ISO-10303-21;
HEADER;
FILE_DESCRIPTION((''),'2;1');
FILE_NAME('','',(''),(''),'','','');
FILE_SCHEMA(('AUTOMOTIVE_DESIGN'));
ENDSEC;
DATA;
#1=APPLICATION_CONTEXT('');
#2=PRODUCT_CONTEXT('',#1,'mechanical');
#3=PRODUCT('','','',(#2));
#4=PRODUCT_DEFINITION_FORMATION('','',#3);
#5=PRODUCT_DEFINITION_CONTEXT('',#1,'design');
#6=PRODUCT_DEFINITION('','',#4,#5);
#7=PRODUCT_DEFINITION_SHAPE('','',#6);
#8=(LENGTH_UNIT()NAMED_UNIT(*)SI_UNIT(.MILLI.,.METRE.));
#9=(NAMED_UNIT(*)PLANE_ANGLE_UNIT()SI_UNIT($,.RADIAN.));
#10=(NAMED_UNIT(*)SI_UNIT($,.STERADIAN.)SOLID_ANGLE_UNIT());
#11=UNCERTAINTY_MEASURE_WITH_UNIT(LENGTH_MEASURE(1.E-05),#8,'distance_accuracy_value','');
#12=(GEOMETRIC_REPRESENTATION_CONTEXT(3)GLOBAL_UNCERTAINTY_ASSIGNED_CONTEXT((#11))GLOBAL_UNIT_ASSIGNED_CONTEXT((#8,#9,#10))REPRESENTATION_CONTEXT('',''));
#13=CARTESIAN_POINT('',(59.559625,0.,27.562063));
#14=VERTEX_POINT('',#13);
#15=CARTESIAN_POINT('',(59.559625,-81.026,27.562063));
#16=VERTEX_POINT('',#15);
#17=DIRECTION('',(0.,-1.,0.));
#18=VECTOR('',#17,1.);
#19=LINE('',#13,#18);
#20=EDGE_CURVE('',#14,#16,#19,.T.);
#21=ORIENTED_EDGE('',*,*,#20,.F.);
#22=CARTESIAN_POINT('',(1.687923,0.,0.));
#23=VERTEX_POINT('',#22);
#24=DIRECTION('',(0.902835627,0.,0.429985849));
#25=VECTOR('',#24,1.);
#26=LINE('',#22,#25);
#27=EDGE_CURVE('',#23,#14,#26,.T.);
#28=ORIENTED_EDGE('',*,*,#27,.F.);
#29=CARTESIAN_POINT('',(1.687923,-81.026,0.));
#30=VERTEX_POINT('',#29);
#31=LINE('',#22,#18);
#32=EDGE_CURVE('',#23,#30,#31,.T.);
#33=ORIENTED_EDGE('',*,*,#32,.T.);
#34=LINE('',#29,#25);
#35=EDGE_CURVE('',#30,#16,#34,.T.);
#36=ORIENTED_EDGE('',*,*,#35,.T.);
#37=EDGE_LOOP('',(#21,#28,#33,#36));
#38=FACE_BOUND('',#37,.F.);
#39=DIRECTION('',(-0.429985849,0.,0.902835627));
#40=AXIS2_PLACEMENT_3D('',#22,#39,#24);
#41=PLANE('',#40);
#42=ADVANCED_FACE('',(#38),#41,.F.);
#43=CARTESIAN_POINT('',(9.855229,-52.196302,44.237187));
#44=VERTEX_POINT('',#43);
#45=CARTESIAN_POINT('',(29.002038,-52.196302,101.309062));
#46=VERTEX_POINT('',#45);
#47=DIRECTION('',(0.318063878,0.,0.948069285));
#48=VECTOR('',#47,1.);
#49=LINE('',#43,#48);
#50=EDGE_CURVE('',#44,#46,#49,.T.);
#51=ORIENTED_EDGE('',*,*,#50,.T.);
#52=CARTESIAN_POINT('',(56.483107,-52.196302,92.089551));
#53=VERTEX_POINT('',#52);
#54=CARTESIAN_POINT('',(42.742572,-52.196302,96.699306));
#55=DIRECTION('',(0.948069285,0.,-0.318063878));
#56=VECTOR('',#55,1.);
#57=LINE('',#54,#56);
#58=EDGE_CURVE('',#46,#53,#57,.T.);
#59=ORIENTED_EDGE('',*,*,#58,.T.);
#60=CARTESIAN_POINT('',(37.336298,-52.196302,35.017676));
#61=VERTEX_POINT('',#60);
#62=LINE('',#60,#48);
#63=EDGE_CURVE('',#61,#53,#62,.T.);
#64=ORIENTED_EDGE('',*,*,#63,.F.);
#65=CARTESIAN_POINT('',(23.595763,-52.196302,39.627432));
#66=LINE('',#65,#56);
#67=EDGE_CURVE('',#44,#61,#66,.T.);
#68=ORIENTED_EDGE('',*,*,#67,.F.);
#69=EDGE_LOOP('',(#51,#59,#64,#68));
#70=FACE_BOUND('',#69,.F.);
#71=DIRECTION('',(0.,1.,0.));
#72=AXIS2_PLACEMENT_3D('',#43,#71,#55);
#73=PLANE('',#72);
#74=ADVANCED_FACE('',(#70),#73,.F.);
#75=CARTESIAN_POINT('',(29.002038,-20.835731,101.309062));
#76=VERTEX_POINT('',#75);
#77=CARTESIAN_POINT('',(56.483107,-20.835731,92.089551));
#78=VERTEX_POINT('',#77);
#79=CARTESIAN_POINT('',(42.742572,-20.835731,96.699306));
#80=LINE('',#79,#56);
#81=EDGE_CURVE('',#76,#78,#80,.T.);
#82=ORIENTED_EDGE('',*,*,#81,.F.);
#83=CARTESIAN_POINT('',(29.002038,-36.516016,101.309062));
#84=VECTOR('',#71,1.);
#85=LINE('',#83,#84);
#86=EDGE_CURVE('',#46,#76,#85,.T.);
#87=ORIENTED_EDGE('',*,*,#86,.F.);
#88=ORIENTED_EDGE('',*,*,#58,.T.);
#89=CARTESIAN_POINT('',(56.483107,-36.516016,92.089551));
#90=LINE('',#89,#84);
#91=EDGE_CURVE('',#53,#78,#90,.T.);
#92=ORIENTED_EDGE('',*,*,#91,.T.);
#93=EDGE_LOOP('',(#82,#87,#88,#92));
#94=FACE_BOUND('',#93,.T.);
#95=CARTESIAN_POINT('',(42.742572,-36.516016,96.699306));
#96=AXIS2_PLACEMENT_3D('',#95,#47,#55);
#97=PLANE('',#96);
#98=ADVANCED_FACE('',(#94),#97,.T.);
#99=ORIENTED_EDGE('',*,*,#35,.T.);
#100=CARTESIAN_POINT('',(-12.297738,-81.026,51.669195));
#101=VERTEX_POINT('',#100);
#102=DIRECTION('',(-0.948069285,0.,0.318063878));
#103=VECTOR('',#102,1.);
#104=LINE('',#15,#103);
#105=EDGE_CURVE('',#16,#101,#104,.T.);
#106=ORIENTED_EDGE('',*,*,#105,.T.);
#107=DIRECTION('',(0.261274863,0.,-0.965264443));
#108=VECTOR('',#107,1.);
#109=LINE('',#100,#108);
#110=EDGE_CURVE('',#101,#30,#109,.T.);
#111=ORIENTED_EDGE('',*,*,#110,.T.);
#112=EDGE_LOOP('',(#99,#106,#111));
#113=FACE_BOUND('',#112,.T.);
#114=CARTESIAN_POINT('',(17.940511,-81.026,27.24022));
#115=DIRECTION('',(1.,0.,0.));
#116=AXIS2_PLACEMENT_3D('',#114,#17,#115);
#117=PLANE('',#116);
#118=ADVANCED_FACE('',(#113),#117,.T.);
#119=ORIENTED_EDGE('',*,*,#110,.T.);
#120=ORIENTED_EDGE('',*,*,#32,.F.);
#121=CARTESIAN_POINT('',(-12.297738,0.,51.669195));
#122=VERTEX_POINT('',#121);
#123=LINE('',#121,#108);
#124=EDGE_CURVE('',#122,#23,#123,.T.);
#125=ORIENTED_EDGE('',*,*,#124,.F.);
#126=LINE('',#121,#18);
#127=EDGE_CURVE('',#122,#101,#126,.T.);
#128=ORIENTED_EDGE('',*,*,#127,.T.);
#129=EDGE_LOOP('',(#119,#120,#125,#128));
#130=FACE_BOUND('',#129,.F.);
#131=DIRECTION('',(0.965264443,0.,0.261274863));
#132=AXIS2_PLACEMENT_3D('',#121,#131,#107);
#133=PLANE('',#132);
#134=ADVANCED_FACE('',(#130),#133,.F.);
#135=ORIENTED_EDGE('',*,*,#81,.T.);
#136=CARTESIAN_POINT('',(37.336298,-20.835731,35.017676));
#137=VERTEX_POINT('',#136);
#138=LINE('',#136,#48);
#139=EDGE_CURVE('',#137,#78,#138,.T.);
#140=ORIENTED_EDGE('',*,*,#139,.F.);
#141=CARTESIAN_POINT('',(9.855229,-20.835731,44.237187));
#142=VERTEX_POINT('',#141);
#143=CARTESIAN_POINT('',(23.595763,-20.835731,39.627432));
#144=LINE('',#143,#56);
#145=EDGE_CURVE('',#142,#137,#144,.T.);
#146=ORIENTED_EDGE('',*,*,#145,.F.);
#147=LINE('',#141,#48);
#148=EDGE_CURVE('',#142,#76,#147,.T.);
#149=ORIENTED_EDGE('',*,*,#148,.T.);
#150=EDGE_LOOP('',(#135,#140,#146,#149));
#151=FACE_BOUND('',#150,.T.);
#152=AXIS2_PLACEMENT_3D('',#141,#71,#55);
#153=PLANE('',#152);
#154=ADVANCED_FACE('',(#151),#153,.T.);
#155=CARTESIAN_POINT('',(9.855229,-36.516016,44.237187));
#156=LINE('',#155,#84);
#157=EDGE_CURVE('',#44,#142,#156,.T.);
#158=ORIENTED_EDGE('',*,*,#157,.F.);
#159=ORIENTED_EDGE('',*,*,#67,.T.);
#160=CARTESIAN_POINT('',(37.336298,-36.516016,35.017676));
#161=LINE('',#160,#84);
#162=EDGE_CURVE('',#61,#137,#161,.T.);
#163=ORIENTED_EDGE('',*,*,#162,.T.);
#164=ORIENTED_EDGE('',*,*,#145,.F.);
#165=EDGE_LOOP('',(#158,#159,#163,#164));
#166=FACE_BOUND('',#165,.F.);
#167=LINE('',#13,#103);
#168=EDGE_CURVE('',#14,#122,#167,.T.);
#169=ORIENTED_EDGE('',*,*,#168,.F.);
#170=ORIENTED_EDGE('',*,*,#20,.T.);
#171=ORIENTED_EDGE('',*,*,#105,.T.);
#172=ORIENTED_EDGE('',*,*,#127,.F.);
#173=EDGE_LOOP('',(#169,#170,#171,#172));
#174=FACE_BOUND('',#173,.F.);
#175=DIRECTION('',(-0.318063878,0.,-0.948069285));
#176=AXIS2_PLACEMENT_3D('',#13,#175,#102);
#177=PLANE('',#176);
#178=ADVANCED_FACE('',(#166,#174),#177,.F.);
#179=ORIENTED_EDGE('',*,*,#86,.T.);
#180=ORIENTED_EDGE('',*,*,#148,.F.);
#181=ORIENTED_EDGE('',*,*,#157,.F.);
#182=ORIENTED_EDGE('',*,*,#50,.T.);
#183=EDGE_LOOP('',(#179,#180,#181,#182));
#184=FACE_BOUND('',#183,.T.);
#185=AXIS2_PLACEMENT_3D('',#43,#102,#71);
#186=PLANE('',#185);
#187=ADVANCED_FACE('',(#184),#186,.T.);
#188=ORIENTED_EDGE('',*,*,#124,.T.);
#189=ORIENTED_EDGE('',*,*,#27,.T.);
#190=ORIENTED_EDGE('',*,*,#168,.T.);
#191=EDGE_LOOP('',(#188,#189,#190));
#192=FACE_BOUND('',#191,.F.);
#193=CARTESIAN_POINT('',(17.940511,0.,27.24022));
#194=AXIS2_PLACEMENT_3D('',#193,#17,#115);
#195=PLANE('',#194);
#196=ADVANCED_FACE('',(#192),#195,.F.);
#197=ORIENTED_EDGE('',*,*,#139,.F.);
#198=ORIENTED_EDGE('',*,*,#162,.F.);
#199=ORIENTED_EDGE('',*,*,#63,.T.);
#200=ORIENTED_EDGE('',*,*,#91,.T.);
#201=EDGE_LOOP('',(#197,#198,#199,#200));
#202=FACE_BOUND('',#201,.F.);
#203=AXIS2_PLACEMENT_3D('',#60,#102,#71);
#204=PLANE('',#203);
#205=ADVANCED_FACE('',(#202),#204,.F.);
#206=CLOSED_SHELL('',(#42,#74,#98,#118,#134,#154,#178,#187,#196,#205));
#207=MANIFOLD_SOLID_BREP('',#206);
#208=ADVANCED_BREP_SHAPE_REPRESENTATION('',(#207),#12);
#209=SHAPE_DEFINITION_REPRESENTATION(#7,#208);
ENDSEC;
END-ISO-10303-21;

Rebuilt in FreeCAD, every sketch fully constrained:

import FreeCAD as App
import Part
import Sketcher

V = App.Vector
Q = App.Units.Quantity

doc = App.newDocument("Part")
body = doc.addObject("PartDesign::Body", "Body")

sketch1 = doc.addObject("Sketcher::SketchObject", "Sketch")
body.addObject(sketch1)
sketch1.AttachmentSupport = (doc.XZ_Plane, [""])
sketch1.MapMode = "FlatFace"
sketch1.addGeometry([
    Part.LineSegment(V(-12, 52, 0), V(2, 0, 0)),
    Part.LineSegment(V(2, 0, 0), V(60, 28, 0)),
    Part.LineSegment(V(60, 28, 0), V(-12, 52, 0)),
], False)
sketch1.addConstraint([
    Sketcher.Constraint("Coincident", 0, 2, 1, 1),
    Sketcher.Constraint("Coincident", 1, 2, 2, 1),
    Sketcher.Constraint("Coincident", 2, 2, 0, 1),
    Sketcher.Constraint("PointOnObject", 0, 2, -1),
    Sketcher.Constraint("DistanceX", 0, 2, 1, 2, Q("57.871701 mm")),
    Sketcher.Constraint("Distance", 0, Q("53.528539 mm")),
    Sketcher.Constraint("Distance", 1, Q("64.099931 mm")),
    Sketcher.Constraint("DistanceX", 2, 2, -1, 1, Q("12.297738 mm")),
    Sketcher.Constraint("DistanceX", 2, 2, 0, 2, Q("13.985662 mm")),
])
pad1 = doc.addObject("PartDesign::Pad", "Pad")
body.addObject(pad1)
pad1.Profile = sketch1
pad1.Length = Q("3.19 in")

sketch2 = doc.addObject("Sketcher::SketchObject", "Sketch001")
body.addObject(sketch2)
sketch2.Placement = App.Placement(V(14.336574, 0, 42.733759), App.Rotation(V(0.948069285, 0, -0.318063878), V(0, 1, 0), V(0.318063878, 0, 0.948069285), "ZXY"))
sketch2.addGeometry([
    Part.LineSegment(V(-5, -21, 0), V(-5, -52, 0)),
    Part.LineSegment(V(-5, -52, 0), V(24, -52, 0)),
    Part.LineSegment(V(24, -52, 0), V(24, -21, 0)),
    Part.LineSegment(V(24, -21, 0), V(-5, -21, 0)),
], False)
sketch2.addConstraint([
    Sketcher.Constraint("Coincident", 0, 2, 1, 1),
    Sketcher.Constraint("Coincident", 1, 2, 2, 1),
    Sketcher.Constraint("Coincident", 2, 2, 3, 1),
    Sketcher.Constraint("Coincident", 3, 2, 0, 1),
    Sketcher.Constraint("Vertical", 0),
    Sketcher.Constraint("Horizontal", 1),
    Sketcher.Constraint("Vertical", 2),
    Sketcher.Constraint("Horizontal", 3),
    Sketcher.Constraint("DistanceX", -1, 1, 1, 2, Q("0.9551 in")),
    Sketcher.Constraint("DistanceX", 1, 1, 1, 2, Q("28.986351 mm")),
    Sketcher.Constraint("DistanceY", 0, 2, 0, 1, Q("31.36057 mm")),
    Sketcher.Constraint("DistanceY", 0, 2, -1, 1, Q("52.196301 mm")),
])
pad2 = doc.addObject("PartDesign::Pad", "Pad001")
body.addObject(pad2)
pad2.Profile = sketch2
pad2.Length = Q("2.37 in")

doc.recompute()
